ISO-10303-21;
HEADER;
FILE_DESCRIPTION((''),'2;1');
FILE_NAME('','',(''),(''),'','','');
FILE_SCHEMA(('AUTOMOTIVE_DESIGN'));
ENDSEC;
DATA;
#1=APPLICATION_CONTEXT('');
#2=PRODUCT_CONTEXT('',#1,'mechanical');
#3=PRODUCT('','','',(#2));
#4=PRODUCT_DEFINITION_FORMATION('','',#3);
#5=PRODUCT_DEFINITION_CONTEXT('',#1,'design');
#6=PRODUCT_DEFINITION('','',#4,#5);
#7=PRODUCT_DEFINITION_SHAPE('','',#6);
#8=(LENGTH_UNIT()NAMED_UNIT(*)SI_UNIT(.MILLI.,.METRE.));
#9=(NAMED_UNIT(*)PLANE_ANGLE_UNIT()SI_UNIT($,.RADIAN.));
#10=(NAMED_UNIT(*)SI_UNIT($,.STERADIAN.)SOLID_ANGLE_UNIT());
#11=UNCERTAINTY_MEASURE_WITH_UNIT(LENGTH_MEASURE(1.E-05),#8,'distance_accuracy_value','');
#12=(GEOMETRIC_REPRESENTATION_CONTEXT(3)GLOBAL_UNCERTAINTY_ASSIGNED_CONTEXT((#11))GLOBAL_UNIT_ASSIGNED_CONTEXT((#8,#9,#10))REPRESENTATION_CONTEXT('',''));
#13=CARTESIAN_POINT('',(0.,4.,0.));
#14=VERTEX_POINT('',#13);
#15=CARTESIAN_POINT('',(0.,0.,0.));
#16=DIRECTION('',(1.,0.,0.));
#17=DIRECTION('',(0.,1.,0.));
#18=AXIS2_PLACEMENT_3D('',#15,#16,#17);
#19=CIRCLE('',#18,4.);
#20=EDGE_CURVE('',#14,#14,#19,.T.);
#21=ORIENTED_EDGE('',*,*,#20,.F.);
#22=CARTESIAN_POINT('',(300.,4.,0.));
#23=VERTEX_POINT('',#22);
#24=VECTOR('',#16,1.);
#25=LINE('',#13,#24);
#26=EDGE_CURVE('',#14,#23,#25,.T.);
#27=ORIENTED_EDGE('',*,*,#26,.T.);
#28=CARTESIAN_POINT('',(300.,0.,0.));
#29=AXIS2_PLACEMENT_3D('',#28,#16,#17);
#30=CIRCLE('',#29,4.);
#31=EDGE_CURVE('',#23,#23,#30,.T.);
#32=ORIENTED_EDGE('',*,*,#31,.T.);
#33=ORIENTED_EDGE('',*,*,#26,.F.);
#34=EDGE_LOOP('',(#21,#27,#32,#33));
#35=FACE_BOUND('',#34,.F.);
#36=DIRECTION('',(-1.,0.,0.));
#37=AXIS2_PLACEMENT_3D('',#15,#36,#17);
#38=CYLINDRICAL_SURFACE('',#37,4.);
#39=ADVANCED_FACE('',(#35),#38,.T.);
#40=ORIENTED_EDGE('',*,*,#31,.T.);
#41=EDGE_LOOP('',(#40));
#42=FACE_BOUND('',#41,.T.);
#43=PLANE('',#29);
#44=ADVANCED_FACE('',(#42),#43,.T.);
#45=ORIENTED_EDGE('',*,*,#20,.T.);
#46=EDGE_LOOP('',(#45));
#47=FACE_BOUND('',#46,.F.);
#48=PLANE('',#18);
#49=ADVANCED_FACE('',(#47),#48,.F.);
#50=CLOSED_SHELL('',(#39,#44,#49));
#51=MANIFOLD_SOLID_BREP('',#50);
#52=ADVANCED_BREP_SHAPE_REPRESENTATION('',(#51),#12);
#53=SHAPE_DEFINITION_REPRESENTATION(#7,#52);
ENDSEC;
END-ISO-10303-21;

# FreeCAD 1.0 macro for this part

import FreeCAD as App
import Part
import Sketcher

V = App.Vector

doc = App.newDocument("Part")
body = doc.addObject("PartDesign::Body", "Body")

# Sketch on YZ plane
sketch1 = body.newObject("Sketcher::SketchObject", "Sketch")
sketch1.AttachmentSupport = (doc.getObject("YZ_Plane"), [""])
sketch1.MapMode = "FlatFace"
sketch1.addGeometry(Part.Circle(V(0, 0, 0), V(0, 0, 1), 4), False)
sketch1.addConstraint(Sketcher.Constraint("Coincident", 0, 3, -1, 1))
sketch1.addConstraint(Sketcher.Constraint("Diameter", 0, 8.0))
pad1 = body.newObject("PartDesign::Pad", "Pad")
pad1.Profile = sketch1
pad1.Length = 300

doc.recompute()
